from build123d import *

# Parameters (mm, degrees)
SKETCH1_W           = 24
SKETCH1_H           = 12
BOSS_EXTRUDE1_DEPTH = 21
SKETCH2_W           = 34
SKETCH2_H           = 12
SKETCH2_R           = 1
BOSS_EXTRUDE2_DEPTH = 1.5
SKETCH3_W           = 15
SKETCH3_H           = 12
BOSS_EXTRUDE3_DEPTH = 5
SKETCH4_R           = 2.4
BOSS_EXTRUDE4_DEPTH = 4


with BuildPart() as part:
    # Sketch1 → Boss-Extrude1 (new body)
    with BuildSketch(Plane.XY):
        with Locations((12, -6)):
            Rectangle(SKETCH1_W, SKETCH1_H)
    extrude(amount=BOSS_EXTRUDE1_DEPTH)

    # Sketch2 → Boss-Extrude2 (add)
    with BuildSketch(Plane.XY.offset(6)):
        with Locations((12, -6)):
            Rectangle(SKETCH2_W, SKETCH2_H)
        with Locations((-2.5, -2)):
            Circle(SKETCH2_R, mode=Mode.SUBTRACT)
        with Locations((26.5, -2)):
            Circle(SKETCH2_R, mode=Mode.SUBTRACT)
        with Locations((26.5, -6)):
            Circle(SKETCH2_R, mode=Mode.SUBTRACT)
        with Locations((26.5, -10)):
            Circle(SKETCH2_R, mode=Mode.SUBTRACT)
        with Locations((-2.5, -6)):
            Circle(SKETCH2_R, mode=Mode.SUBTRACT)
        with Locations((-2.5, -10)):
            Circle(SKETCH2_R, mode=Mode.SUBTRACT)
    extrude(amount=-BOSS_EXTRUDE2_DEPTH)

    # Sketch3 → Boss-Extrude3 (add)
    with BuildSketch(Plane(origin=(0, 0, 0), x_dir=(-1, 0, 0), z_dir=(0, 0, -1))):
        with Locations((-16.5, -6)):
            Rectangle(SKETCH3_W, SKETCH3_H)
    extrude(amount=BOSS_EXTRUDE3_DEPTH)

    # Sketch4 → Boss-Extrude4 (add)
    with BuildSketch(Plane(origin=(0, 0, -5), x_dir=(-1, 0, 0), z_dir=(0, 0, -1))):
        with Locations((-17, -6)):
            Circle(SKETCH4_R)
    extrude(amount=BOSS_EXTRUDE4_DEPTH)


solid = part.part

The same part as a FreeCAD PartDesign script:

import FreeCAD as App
import Part
import Sketcher


def add_polygon(sketch, points):
    """Adds a closed chain of lines whose ends are joined by coincident constraints."""
    first, n = sketch.GeometryCount, len(points)
    for a, b in zip(points, points[1:] + points[:1]):
        sketch.addGeometry(Part.LineSegment(App.Vector(*a, 0), App.Vector(*b, 0)), False)
    for i in range(n):
        sketch.addConstraint(Sketcher.Constraint("Coincident", first + i, 2, first + (i + 1) % n, 1))

doc = App.newDocument("Part")
body = doc.addObject("PartDesign::Body", "Body")

sketch1 = body.newObject("Sketcher::SketchObject", "Sketch")
sketch1.AttachmentSupport = (doc.getObject("XY_Plane"), [""])
sketch1.MapMode = "FlatFace"
add_polygon(sketch1, [(0, 0), (0, -12), (24, -12), (24, 0)])
sketch1.addConstraint([
    Sketcher.Constraint("Vertical", 0),
    Sketcher.Constraint("Horizontal", 1),
    Sketcher.Constraint("Vertical", 2),
    Sketcher.Constraint("Horizontal", 3),
    Sketcher.Constraint("Coincident", 3, 2, -1, 1),
    Sketcher.Constraint("DistanceX", 1, 1, 1, 2, 24.0),
    Sketcher.Constraint("DistanceY", 0, 2, 0, 1, 12.0),
])
pad1 = body.newObject("PartDesign::Pad", "Pad")
pad1.Profile = sketch1
pad1.Length = 21

sketch2 = body.newObject("Sketcher::SketchObject", "Sketch001")
sketch2.AttachmentSupport = (doc.getObject("XY_Plane"), [""])
sketch2.MapMode = "FlatFace"
sketch2.AttachmentOffset = App.Placement(App.Vector(0, 0, 6), App.Rotation())
add_polygon(sketch2, [(-5, 0), (-5, -12), (29, -12), (29, 0)])
sketch2.addGeometry(Part.Circle(App.Vector(-2.5, -10, 0), App.Vector(0, 0, 1), 1), False)
sketch2.addGeometry(Part.Circle(App.Vector(26.5, -10, 0), App.Vector(0, 0, 1), 1), False)
sketch2.addGeometry(Part.Circle(App.Vector(-2.5, -6, 0), App.Vector(0, 0, 1), 1), False)
sketch2.addGeometry(Part.Circle(App.Vector(-2.5, -2, 0), App.Vector(0, 0, 1), 1), False)
sketch2.addGeometry(Part.Circle(App.Vector(26.5, -6, 0), App.Vector(0, 0, 1), 1), False)
sketch2.addGeometry(Part.Circle(App.Vector(26.5, -2, 0), App.Vector(0, 0, 1), 1), False)
sketch2.addConstraint([
    Sketcher.Constraint("Vertical", 0),
    Sketcher.Constraint("Horizontal", 1),
    Sketcher.Constraint("Vertical", 2),
    Sketcher.Constraint("Horizontal", 3),
    Sketcher.Constraint("Equal", 4, 5),
    Sketcher.Constraint("Equal", 5, 6),
    Sketcher.Constraint("Equal", 6, 7),
    Sketcher.Constraint("Equal", 7, 8),
    Sketcher.Constraint("Equal", 8, 9),
    Sketcher.Constraint("PointOnObject", 2, 2, -1),
    Sketcher.Constraint("Horizontal", 4, 3, 5, 3),
    Sketcher.Constraint("Horizontal", 6, 3, 8, 3),
    Sketcher.Constraint("Horizontal", 7, 3, 9, 3),
    Sketcher.Constraint("Vertical", 4, 3, 6, 3),
    Sketcher.Constraint("Vertical", 6, 3, 7, 3),
    Sketcher.Constraint("Vertical", 5, 3, 8, 3),
    Sketcher.Constraint("Vertical", 8, 3, 9, 3),
    Sketcher.Constraint("Diameter", 4, 2.0),
    Sketcher.Constraint("DistanceX", 1, 1, 1, 2, 34.0),
    Sketcher.Constraint("DistanceY", 0, 2, 0, 1, 12.0),
    Sketcher.Constraint("DistanceY", 4, 3, -1, 1, 10.0),
    Sketcher.Constraint("DistanceY", 6, 3, -1, 1, 6.0),
    Sketcher.Constraint("DistanceY", 7, 3, -1, 1, 2.0),
    Sketcher.Constraint("DistanceX", 0, 2, -1, 1, 5.0),
    Sketcher.Constraint("DistanceX", 4, 3, 5, 3, 29.0),
    Sketcher.Constraint("DistanceX", 4, 3, -1, 1, 2.5),
])
pad2 = body.newObject("PartDesign::Pad", "Pad001")
pad2.Profile = sketch2
pad2.Length = 1.5
pad2.Reversed = True

sketch3 = body.newObject("Sketcher::SketchObject", "Sketch002")
sketch3.AttachmentSupport = (doc.getObject("XY_Plane"), [""])
sketch3.MapMode = "FlatFace"
add_polygon(sketch3, [(24, 0), (24, -12), (9, -12), (9, 0)])
sketch3.addConstraint([
    Sketcher.Constraint("Vertical", 0),
    Sketcher.Constraint("Horizontal", 1),
    Sketcher.Constraint("Vertical", 2),
    Sketcher.Constraint("Horizontal", 3),
    Sketcher.Constraint("PointOnObject", 2, 2, -1),
    Sketcher.Constraint("DistanceX", 1, 2, 1, 1, 15.0),
    Sketcher.Constraint("DistanceY", 0, 2, 0, 1, 12.0),
    Sketcher.Constraint("DistanceX", -1, 1, 0, 2, 24.0),
])
pad3 = body.newObject("PartDesign::Pad", "Pad002")
pad3.Profile = sketch3
pad3.Length = 5
pad3.Reversed = True

sketch4 = body.newObject("Sketcher::SketchObject", "Sketch003")
sketch4.AttachmentSupport = (doc.getObject("XY_Plane"), [""])
sketch4.MapMode = "FlatFace"
sketch4.AttachmentOffset = App.Placement(App.Vector(0, 0, -5), App.Rotation())
sketch4.addGeometry(Part.Circle(App.Vector(17, -6, 0), App.Vector(0, 0, 1), 2.4), False)
sketch4.addConstraint([
    Sketcher.Constraint("Diameter", 0, 4.8),
    Sketcher.Constraint("DistanceX", -1, 1, 0, 3, 17.0),
    Sketcher.Constraint("DistanceY", 0, 3, -1, 1, 6.0),
])
pad4 = body.newObject("PartDesign::Pad", "Pad003")
pad4.Profile = sketch4
pad4.Length = 4
pad4.Reversed = True

doc.recompute()
